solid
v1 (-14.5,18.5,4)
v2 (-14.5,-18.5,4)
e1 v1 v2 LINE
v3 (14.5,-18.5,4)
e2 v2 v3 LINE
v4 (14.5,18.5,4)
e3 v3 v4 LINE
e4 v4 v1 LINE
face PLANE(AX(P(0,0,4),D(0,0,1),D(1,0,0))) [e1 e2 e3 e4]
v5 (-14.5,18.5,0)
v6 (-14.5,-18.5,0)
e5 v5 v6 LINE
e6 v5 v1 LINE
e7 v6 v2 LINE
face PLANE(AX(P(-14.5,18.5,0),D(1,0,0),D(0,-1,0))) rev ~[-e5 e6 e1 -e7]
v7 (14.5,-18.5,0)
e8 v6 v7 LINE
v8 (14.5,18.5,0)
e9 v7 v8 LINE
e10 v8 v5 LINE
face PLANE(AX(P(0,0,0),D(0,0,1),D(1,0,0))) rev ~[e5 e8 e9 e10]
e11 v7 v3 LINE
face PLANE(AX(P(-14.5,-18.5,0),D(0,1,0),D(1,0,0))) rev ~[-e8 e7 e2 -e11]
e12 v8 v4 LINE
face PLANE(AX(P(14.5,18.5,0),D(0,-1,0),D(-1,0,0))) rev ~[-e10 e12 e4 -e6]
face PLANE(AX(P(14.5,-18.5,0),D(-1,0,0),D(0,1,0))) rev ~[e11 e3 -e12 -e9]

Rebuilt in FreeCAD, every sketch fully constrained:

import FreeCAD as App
import Part
import Sketcher
from FreeCAD import Vector
Q = App.Units.Quantity


def add_polygon(sketch, points):
    """Adds a closed chain of lines whose ends are joined by coincident constraints."""
    first, n = sketch.GeometryCount, len(points)
    for a, b in zip(points, points[1:] + points[:1]):
        sketch.addGeometry(Part.LineSegment(App.Vector(*a, 0), App.Vector(*b, 0)), False)
    for i in range(n):
        sketch.addConstraint(Sketcher.Constraint("Coincident", first + i, 2, first + (i + 1) % n, 1))

doc = App.newDocument("Part")
body = doc.addObject("PartDesign::Body", "Body")

sketch1 = body.newObject("Sketcher::SketchObject", "Sketch")
sketch1.AttachmentSupport = (doc.getObject("XY_Plane"), [""])
sketch1.MapMode = "FlatFace"
add_polygon(sketch1, [(-14, 18), (-14, -18), (14, -18), (14, 18)])
sketch1.addConstraint([
    Sketcher.Constraint("Vertical", 0),
    Sketcher.Constraint("Horizontal", 1),
    Sketcher.Constraint("Vertical", 2),
    Sketcher.Constraint("Horizontal", 3),
    Sketcher.Constraint("Symmetric", 0, 2, 2, 2, -1, 1),
    Sketcher.Constraint("DistanceX", 1, 1, 1, 2, Q("29 mm")),
    Sketcher.Constraint("DistanceY", 0, 2, 0, 1, Q("37 mm")),
])
pad1 = body.newObject("PartDesign::Pad", "Pad")
pad1.Profile = sketch1
pad1.Length = 4

doc.recompute()
